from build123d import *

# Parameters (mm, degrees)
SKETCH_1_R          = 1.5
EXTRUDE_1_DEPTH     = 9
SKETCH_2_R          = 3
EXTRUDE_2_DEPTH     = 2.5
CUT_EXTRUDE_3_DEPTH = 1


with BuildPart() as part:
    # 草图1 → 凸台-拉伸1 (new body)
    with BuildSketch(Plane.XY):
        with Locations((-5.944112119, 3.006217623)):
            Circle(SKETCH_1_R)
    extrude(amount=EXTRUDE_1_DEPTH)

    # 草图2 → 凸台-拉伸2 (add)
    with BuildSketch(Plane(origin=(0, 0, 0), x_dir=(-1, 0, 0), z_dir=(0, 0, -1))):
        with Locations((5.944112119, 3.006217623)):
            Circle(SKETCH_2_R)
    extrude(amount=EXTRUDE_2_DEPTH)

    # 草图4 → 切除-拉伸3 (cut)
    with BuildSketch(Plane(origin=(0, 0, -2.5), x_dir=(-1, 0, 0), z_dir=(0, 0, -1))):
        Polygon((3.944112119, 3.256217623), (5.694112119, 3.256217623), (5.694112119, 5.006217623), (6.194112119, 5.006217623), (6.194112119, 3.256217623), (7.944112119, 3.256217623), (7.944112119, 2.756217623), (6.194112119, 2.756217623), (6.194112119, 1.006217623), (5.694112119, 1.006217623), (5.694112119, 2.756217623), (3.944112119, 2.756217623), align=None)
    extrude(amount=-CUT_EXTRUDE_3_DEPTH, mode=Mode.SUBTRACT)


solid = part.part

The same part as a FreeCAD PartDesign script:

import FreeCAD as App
import Part
import Sketcher
from FreeCAD import Vector


def add_polygon(sketch, points):
    """Adds a closed chain of lines whose ends are joined by coincident constraints."""
    first, n = sketch.GeometryCount, len(points)
    for a, b in zip(points, points[1:] + points[:1]):
        sketch.addGeometry(Part.LineSegment(App.Vector(*a, 0), App.Vector(*b, 0)), False)
    for i in range(n):
        sketch.addConstraint(Sketcher.Constraint("Coincident", first + i, 2, first + (i + 1) % n, 1))

doc = App.newDocument("Part")
body = doc.addObject("PartDesign::Body", "Body")

sketch1 = doc.addObject("Sketcher::SketchObject", "Sketch")
body.addObject(sketch1)
sketch1.AttachmentSupport = (doc.XY_Plane, [""])
sketch1.MapMode = "FlatFace"
sketch1.addGeometry(Part.Circle(Vector(-5.944112, 3.006218, 0), Vector(0, 0, 1), 1.5), False)
sketch1.addConstraint([
    Sketcher.Constraint("Diameter", 0, 3.0),
    Sketcher.Constraint("DistanceX", 0, 3, -1, 1, 5.944112),
    Sketcher.Constraint("DistanceY", -1, 1, 0, 3, 3.006218),
])
pad1 = doc.addObject("PartDesign::Pad", "Pad")
body.addObject(pad1)
pad1.Profile = sketch1
pad1.Length = 9

sketch2 = doc.addObject("Sketcher::SketchObject", "Sketch001")
body.addObject(sketch2)
sketch2.AttachmentSupport = (doc.XY_Plane, [""])
sketch2.MapMode = "FlatFace"
sketch2.addGeometry(Part.Circle(Vector(-5.944112, 3.006218, 0), Vector(0, 0, 1), 3), False)
sketch2.addConstraint([
    Sketcher.Constraint("Diameter", 0, 6.0),
    Sketcher.Constraint("DistanceX", 0, 3, -1, 1, 5.944112),
    Sketcher.Constraint("DistanceY", -1, 1, 0, 3, 3.006218),
])
pad2 = doc.addObject("PartDesign::Pad", "Pad001")
body.addObject(pad2)
pad2.Profile = sketch2
pad2.Length = 2.5
pad2.Reversed = True

sketch3 = doc.addObject("Sketcher::SketchObject", "Sketch002")
body.addObject(sketch3)
sketch3.AttachmentSupport = (doc.XY_Plane, [""])
sketch3.MapMode = "FlatFace"
sketch3.AttachmentOffset = App.Placement(Vector(0, 0, -2.5), App.Rotation())
add_polygon(sketch3, [(-5.694112, 3.256218), (-3.944112, 3.256218), (-3.944112, 2.756218), (-5.694112, 2.756218), (-5.694112, 1.006218), (-6.194112, 1.006218), (-6.194112, 2.756218), (-7.944112, 2.756218), (-7.944112, 3.256218), (-6.194112, 3.256218), (-6.194112, 5.006218), (-5.694112, 5.006218)])
sketch3.addConstraint([
    Sketcher.Constraint("Horizontal", 0),
    Sketcher.Constraint("Vertical", 1),
    Sketcher.Constraint("Horizontal", 2),
    Sketcher.Constraint("Vertical", 3),
    Sketcher.Constraint("Horizontal", 4),
    Sketcher.Constraint("Vertical", 5),
    Sketcher.Constraint("Horizontal", 6),
    Sketcher.Constraint("Vertical", 7),
    Sketcher.Constraint("Horizontal", 8),
    Sketcher.Constraint("Vertical", 9),
    Sketcher.Constraint("Horizontal", 10),
    Sketcher.Constraint("Vertical", 11),
    Sketcher.Constraint("Horizontal", 2, 2, 5, 2),
    Sketcher.Constraint("Horizontal", 0, 2, 7, 2),
    Sketcher.Constraint("Vertical", 5, 2, 8, 2),
    Sketcher.Constraint("Vertical", 3, 2, 10, 2),
    Sketcher.Constraint("Equal", 2, 6),
    Sketcher.Constraint("Equal", 10, 1),
    Sketcher.Constraint("Equal", 8, 3),
    Sketcher.Constraint("Equal", 5, 9),
    Sketcher.Constraint("DistanceX", 4, 2, 4, 1, 0.5),
    Sketcher.Constraint("DistanceX", 6, 2, 1, 2, 4.0),
    Sketcher.Constraint("DistanceX", 0, 2, -1, 1, 3.944112),
    Sketcher.Constraint("DistanceY", -1, 1, 0, 2, 3.256218),
])
pocket1 = doc.addObject("PartDesign::Pocket", "Pocket")
body.addObject(pocket1)
pocket1.Profile = sketch3
pocket1.Length = 1
pocket1.Reversed = True

doc.recompute()
